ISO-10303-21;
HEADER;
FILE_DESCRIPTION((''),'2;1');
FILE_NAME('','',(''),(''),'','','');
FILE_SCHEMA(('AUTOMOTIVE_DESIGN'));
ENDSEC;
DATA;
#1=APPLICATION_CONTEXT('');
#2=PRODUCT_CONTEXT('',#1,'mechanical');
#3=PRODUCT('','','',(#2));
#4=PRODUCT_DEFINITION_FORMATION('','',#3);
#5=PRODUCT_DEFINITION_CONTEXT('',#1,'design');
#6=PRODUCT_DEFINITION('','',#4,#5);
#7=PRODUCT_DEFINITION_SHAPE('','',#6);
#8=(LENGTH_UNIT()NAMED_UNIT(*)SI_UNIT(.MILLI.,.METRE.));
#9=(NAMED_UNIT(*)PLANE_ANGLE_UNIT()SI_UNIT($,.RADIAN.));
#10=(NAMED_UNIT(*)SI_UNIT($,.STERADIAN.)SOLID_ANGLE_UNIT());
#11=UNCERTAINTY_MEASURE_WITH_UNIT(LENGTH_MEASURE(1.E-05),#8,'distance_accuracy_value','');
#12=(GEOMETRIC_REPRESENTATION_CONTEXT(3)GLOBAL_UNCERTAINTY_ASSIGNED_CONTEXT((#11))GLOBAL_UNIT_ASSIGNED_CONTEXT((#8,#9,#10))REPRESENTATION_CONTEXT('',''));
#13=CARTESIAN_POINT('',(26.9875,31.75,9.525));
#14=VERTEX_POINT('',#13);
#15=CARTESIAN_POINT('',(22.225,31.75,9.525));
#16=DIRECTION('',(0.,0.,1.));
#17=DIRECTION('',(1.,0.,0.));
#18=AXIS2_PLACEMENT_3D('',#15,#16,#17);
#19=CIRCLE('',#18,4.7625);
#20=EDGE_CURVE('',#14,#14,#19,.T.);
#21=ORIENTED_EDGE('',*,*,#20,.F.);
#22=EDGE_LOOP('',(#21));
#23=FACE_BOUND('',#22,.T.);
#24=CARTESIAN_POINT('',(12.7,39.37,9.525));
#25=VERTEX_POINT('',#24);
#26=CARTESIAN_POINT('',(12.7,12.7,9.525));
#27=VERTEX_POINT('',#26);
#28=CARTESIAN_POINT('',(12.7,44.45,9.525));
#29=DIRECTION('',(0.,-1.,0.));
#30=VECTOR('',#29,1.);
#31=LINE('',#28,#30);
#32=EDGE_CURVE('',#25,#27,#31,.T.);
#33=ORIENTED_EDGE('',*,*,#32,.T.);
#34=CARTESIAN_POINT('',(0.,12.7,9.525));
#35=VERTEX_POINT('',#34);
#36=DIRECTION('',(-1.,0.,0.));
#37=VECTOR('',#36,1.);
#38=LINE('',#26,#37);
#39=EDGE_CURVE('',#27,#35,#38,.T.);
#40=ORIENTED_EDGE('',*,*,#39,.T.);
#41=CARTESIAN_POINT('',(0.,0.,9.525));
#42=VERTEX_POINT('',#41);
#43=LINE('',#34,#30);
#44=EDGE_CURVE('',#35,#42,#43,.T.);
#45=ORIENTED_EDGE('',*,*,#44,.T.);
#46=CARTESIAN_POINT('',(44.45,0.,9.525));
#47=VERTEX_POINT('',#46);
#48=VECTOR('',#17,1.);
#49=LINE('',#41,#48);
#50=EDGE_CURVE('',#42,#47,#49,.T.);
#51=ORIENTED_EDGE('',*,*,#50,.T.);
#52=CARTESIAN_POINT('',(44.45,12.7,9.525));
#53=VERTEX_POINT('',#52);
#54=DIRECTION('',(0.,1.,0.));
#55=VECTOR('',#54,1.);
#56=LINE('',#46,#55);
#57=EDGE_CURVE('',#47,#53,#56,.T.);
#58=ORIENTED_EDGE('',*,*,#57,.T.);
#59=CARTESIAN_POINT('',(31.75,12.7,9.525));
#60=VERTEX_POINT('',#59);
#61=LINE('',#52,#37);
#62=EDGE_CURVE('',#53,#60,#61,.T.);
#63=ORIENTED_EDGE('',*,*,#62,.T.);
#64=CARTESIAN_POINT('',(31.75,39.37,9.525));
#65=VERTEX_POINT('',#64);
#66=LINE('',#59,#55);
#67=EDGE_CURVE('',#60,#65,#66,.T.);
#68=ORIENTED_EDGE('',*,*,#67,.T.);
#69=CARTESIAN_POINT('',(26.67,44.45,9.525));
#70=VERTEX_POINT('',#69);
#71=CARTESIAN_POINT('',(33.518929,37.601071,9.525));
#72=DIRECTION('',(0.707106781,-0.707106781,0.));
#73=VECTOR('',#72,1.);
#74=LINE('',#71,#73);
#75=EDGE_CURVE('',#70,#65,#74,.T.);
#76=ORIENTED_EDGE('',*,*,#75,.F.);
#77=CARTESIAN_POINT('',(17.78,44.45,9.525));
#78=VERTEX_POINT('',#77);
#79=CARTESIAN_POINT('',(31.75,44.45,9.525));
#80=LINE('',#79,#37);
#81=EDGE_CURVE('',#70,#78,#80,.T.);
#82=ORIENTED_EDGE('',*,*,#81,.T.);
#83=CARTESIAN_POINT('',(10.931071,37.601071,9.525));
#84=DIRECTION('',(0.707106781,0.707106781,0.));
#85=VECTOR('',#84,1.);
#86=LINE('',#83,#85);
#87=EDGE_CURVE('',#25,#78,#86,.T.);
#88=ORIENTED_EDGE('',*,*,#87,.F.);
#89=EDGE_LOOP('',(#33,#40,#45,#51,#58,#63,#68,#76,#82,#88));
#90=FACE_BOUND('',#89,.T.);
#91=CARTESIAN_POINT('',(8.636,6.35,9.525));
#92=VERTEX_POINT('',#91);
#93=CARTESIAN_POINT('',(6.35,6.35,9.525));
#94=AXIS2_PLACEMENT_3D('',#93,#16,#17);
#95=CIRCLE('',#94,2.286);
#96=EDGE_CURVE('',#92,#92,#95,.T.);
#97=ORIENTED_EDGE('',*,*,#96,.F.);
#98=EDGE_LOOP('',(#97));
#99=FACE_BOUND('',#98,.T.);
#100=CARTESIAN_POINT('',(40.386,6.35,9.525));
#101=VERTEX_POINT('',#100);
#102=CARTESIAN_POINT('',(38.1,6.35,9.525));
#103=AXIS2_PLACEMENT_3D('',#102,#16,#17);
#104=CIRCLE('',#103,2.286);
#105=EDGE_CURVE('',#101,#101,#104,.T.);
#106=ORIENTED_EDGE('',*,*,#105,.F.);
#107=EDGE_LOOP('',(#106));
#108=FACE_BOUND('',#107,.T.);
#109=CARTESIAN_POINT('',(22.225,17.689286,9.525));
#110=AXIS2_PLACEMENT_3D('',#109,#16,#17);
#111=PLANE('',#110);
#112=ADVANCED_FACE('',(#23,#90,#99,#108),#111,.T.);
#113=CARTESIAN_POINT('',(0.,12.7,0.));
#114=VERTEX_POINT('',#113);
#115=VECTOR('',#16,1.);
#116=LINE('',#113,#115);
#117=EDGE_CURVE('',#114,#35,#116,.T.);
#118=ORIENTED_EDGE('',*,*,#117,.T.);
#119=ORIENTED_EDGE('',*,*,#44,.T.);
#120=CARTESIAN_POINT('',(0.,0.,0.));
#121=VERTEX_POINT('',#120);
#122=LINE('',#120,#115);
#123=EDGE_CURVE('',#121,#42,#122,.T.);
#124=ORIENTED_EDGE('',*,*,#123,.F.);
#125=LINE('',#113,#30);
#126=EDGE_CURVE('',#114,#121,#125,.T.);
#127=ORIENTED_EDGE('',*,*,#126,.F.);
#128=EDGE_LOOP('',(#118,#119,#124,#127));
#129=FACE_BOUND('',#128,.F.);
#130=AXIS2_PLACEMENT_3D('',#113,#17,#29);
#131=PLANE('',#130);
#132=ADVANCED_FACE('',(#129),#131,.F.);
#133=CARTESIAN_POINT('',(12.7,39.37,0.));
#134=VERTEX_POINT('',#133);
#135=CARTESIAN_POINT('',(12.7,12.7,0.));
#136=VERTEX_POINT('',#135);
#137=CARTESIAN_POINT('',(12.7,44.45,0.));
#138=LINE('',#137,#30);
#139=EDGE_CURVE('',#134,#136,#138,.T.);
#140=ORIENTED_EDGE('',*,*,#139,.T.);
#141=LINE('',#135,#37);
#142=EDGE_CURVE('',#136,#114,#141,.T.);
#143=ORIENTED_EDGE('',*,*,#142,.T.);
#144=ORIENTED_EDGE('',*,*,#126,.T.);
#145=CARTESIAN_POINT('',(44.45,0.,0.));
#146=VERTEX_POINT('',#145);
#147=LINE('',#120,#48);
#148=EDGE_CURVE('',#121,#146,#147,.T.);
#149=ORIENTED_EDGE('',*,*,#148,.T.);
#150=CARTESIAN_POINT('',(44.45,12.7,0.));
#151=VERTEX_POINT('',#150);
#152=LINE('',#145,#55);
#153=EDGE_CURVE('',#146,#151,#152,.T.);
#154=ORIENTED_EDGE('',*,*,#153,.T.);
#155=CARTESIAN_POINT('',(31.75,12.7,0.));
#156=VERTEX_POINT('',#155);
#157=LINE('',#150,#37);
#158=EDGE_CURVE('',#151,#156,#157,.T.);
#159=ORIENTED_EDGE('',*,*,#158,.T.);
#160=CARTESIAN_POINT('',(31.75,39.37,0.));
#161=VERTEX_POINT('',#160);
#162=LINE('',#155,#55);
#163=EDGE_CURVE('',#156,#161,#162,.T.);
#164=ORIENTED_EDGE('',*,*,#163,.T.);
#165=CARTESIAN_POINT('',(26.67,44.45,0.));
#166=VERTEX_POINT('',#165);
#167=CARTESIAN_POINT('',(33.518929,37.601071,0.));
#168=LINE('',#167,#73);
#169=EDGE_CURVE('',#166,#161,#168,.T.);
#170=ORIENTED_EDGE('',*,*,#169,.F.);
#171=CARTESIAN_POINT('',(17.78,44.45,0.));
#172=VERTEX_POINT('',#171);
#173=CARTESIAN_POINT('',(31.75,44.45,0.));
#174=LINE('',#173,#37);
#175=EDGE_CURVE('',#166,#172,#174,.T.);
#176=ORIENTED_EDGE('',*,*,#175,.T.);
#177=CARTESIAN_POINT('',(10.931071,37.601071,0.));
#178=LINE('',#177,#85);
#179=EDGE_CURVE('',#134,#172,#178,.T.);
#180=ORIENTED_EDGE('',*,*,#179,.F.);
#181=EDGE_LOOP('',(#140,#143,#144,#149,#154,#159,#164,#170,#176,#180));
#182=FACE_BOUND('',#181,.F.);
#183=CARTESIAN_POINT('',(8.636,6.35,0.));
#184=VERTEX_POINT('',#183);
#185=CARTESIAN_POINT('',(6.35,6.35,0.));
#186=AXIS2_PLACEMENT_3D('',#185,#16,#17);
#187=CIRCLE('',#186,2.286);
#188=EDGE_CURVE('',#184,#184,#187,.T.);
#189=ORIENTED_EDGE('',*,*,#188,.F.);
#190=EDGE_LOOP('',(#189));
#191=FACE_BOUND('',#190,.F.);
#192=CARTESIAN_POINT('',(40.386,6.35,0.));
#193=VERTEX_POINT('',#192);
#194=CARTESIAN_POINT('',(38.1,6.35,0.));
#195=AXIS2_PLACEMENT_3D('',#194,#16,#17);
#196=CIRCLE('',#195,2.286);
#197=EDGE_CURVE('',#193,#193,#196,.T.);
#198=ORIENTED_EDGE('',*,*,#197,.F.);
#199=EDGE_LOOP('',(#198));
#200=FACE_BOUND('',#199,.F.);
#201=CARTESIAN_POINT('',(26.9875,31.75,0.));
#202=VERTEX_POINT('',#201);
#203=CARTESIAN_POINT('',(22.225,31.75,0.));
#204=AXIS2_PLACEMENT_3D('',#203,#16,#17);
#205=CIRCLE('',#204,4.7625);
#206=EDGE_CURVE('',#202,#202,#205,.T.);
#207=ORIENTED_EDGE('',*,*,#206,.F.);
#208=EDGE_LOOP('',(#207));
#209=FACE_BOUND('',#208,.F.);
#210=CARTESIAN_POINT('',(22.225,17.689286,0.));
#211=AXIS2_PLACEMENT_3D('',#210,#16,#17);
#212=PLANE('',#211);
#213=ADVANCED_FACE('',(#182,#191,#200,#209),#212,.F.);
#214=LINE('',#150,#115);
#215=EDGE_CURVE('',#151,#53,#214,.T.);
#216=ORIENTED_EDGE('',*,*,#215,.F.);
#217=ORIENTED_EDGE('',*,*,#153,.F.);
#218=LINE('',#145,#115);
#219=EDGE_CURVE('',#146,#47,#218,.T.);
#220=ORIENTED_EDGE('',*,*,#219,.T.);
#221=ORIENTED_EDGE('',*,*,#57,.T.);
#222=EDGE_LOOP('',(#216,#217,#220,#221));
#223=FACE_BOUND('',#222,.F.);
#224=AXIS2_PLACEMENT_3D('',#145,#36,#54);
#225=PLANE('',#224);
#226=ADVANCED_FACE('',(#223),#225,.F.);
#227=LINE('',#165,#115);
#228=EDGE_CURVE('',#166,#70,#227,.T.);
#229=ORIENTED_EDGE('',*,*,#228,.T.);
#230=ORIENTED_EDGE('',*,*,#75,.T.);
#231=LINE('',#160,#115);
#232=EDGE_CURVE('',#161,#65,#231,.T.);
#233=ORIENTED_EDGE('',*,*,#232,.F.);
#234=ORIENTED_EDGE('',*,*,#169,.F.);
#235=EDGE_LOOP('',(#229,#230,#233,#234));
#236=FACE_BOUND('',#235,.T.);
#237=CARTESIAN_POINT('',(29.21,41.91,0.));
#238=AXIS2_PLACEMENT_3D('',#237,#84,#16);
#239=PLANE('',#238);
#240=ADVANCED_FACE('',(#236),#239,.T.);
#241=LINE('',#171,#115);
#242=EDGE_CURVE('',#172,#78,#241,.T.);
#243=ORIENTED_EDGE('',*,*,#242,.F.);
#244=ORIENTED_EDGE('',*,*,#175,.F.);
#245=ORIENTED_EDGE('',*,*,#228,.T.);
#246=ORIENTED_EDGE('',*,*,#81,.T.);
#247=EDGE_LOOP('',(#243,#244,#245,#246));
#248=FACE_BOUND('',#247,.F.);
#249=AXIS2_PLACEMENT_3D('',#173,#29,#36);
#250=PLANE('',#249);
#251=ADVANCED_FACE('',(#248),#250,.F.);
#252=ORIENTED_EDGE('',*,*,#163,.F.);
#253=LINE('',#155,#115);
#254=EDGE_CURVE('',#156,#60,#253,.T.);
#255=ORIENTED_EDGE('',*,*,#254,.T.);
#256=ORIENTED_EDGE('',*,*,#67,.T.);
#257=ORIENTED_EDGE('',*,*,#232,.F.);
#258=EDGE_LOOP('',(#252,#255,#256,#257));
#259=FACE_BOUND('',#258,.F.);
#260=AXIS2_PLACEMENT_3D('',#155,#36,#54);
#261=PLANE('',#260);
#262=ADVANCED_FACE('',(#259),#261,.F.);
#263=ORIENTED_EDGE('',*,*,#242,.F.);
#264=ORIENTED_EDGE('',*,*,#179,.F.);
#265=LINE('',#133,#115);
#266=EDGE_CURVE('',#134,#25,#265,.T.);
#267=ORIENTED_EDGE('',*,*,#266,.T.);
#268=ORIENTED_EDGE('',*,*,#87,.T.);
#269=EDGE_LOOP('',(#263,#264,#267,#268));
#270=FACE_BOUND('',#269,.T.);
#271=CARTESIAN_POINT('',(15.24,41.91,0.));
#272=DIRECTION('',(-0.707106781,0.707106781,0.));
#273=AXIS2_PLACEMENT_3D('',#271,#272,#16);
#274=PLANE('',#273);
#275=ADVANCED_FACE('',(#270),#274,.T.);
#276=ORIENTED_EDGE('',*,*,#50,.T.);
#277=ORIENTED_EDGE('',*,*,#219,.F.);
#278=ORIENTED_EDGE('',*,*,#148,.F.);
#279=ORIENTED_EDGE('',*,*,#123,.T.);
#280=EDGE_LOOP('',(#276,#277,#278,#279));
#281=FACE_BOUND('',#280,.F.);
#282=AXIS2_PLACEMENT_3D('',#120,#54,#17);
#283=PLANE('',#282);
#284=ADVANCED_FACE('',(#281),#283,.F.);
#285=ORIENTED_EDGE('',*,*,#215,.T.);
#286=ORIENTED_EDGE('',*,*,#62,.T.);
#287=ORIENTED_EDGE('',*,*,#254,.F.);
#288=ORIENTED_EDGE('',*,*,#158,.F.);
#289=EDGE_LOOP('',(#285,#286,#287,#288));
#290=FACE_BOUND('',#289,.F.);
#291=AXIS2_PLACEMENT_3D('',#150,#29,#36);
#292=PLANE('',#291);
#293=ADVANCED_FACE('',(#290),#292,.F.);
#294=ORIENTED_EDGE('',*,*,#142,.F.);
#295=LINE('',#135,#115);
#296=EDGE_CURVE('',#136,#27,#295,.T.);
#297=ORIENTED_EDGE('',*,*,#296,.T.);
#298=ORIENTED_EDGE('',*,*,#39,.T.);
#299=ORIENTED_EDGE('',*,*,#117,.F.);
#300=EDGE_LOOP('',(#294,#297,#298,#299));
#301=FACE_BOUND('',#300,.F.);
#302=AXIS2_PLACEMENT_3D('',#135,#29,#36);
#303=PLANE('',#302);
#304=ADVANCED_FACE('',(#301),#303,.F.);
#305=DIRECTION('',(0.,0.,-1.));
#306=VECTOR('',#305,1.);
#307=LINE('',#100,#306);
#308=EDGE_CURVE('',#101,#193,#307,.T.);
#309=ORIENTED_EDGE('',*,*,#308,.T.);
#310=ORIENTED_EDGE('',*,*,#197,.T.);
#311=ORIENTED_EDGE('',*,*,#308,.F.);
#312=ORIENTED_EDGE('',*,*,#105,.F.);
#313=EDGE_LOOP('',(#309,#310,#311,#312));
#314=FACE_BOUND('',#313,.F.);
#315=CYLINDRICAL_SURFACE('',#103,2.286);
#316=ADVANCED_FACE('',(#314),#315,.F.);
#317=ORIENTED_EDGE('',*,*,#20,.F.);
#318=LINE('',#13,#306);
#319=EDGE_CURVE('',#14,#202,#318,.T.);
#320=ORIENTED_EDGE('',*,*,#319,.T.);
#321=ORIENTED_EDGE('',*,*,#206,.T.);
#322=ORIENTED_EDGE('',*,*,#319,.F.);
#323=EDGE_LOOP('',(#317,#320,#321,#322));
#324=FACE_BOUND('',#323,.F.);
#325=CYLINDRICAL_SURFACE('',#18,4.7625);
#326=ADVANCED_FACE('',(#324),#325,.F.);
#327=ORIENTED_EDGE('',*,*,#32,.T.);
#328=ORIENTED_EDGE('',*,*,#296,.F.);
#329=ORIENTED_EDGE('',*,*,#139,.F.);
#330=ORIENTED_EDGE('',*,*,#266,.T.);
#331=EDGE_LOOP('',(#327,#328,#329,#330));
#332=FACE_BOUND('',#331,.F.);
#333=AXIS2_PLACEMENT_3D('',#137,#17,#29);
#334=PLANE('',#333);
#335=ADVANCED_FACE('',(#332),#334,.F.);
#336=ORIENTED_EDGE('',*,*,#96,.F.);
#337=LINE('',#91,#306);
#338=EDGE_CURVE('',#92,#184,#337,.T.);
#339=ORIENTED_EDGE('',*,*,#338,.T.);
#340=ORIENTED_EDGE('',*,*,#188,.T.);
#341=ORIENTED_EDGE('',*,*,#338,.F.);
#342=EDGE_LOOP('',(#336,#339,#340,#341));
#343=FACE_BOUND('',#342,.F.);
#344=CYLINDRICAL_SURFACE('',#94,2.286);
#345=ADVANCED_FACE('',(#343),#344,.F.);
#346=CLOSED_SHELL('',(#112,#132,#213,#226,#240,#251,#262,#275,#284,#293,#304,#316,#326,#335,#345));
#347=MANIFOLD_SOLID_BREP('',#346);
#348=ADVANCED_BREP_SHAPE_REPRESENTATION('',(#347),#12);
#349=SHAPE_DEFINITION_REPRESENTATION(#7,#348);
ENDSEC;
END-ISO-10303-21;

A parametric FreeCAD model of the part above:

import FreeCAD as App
import Part
import Sketcher
Q = App.Units.Quantity


def edges_at(feature, points):
    """Names of the edges that pass closest to the given points."""
    edges = feature.Shape.Edges
    near = lambda p: min(range(len(edges)), key=lambda i: edges[i].distToShape(Part.Vertex(*p))[0])
    return sorted({f"Edge{near(p) + 1}" for p in points})

doc = App.newDocument("Part")
body = doc.addObject("PartDesign::Body", "Body")

# Sketch on XY plane
sketch1 = body.newObject("Sketcher::SketchObject", "Sketch")
sketch1.AttachmentSupport = (doc.getObject("XY_Plane"), [""])
sketch1.MapMode = "FlatFace"
sketch1.addGeometry([
    Part.LineSegment(App.Vector(0, 13, 0), App.Vector(0, 0, 0)),  # 0
    Part.LineSegment(App.Vector(0, 0, 0), App.Vector(44, 0, 0)),  # 1
    Part.LineSegment(App.Vector(44, 0, 0), App.Vector(44, 13, 0)),  # 2
    Part.LineSegment(App.Vector(44, 13, 0), App.Vector(32, 13, 0)),  # 3
    Part.LineSegment(App.Vector(32, 13, 0), App.Vector(32, 44, 0)),  # 4
    Part.LineSegment(App.Vector(32, 44, 0), App.Vector(13, 44, 0)),  # 5
    Part.LineSegment(App.Vector(13, 44, 0), App.Vector(13, 13, 0)),  # 6
    Part.LineSegment(App.Vector(13, 13, 0), App.Vector(0, 13, 0)),  # 7
], False)
sketch1.addConstraint([
    Sketcher.Constraint("Coincident", 0, 2, 1, 1),
    Sketcher.Constraint("Coincident", 1, 2, 2, 1),
    Sketcher.Constraint("Coincident", 2, 2, 3, 1),
    Sketcher.Constraint("Coincident", 3, 2, 4, 1),
    Sketcher.Constraint("Coincident", 4, 2, 5, 1),
    Sketcher.Constraint("Coincident", 5, 2, 6, 1),
    Sketcher.Constraint("Coincident", 6, 2, 7, 1),
    Sketcher.Constraint("Coincident", 7, 2, 0, 1),
    Sketcher.Constraint("Vertical", 0),
    Sketcher.Constraint("Horizontal", 1),
    Sketcher.Constraint("Vertical", 2),
    Sketcher.Constraint("Horizontal", 3),
    Sketcher.Constraint("Vertical", 4),
    Sketcher.Constraint("Horizontal", 5),
    Sketcher.Constraint("Vertical", 6),
    Sketcher.Constraint("Horizontal", 7),
    Sketcher.Constraint("Coincident", 0, 2, -1, 1),
    Sketcher.Constraint("Horizontal", 3, 2, 6, 2),
    Sketcher.Constraint("Equal", 3, 7),
    Sketcher.Constraint("Equal", 7, 0),
    Sketcher.Constraint("DistanceX", 3, 2, 3, 1, Q("0.5 in")),
    Sketcher.Constraint("DistanceX", 1, 1, 1, 2, Q("1.75 in")),
    Sketcher.Constraint("DistanceY", 4, 1, 4, 2, Q("1.25 in")),
])
pad1 = body.newObject("PartDesign::Pad", "Pad")
pad1.Profile = sketch1
pad1.Length = Q("0.375 in")

# Sketch on XY plane
sketch2 = body.newObject("Sketcher::SketchObject", "Sketch001")
sketch2.AttachmentSupport = (doc.getObject("XY_Plane"), [""])
sketch2.MapMode = "FlatFace"
sketch2.AttachmentOffset = App.Placement(App.Vector(0, 0, 0.375 * 25.4), App.Rotation())
sketch2.addGeometry([
    Part.Circle(App.Vector(22.2, 31.8, 0), App.Vector(0, 0, 1), 4.8),
    Part.Circle(App.Vector(6.3, 6.3, 0), App.Vector(0, 0, 1), 2.3),
    Part.Circle(App.Vector(38.1, 6.3, 0), App.Vector(0, 0, 1), 2.3),
], False)
sketch2.addConstraint([
    Sketcher.Constraint("Equal", 1, 2),
    Sketcher.Constraint("Horizontal", 1, 3, 2, 3),
    Sketcher.Constraint("Diameter", 1, Q("0.18 in")),
    Sketcher.Constraint("Diameter", 0, Q("0.375 in")),
    Sketcher.Constraint("DistanceY", 1, 3, 0, 3, Q("1 in")),
    Sketcher.Constraint("DistanceX", -1, 1, 2, 3, Q("1.5 in")),
    Sketcher.Constraint("DistanceY", -1, 1, 0, 3, Q("1.25 in")),
    Sketcher.Constraint("DistanceX", -1, 1, 1, 3, Q("0.25 in")),
    Sketcher.Constraint("DistanceX", -1, 1, 0, 3, Q("0.875 in")),
])
pocket1 = body.newObject("PartDesign::Pocket", "Pocket")
pocket1.Profile = sketch2
pocket1.Length = Q("1 in")
doc.recompute()

chamfer = body.newObject("PartDesign::Chamfer", "Chamfer")
chamfer.Base = (pocket1, edges_at(pocket1, [(12.7, 44.45, 4.763), (31.75, 44.45, 4.763)]))
chamfer.Size = Q("0.2 in")

doc.recompute()
